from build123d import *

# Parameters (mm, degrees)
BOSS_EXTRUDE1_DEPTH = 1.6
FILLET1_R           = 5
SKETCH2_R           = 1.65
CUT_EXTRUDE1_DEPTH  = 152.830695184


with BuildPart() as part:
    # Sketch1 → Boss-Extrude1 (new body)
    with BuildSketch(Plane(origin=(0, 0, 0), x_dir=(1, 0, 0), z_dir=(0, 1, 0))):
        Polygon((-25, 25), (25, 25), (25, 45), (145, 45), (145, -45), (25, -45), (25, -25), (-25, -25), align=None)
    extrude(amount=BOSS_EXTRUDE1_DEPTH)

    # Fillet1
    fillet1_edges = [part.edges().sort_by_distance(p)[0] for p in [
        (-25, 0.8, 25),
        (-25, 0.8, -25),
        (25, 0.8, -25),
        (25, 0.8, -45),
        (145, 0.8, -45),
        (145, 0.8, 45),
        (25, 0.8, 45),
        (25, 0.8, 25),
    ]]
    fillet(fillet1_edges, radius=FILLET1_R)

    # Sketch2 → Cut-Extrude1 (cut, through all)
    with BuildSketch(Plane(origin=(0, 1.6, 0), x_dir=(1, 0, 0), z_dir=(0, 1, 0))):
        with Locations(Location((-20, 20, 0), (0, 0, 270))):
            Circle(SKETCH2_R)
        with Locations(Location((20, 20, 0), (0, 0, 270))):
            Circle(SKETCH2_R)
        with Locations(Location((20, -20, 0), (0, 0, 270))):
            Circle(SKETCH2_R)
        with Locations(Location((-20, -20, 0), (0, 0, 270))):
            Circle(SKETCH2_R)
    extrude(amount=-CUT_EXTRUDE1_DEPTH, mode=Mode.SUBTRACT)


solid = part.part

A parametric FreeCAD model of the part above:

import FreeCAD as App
import Part
import Sketcher


def edges_at(feature, points):
    """Names of the edges that pass closest to the given points."""
    edges = feature.Shape.Edges
    near = lambda p: min(range(len(edges)), key=lambda i: edges[i].distToShape(Part.Vertex(*p))[0])
    return sorted({f"Edge{near(p) + 1}" for p in points})


def add_polygon(sketch, points):
    """Adds a closed chain of lines whose ends are joined by coincident constraints."""
    first, n = sketch.GeometryCount, len(points)
    for a, b in zip(points, points[1:] + points[:1]):
        sketch.addGeometry(Part.LineSegment(App.Vector(*a, 0), App.Vector(*b, 0)), False)
    for i in range(n):
        sketch.addConstraint(Sketcher.Constraint("Coincident", first + i, 2, first + (i + 1) % n, 1))

doc = App.newDocument("Part")
body = doc.addObject("PartDesign::Body", "Body")

sketch1 = body.newObject("Sketcher::SketchObject", "Sketch")
sketch1.AttachmentSupport = (doc.getObject("XZ_Plane"), [""])
sketch1.MapMode = "FlatFace"
add_polygon(sketch1, [(25, -25), (-25, -25), (-25, 25), (25, 25), (25, 45), (145, 45), (145, -45), (25, -45)])
sketch1.addConstraint([
    Sketcher.Constraint("Horizontal", 0),
    Sketcher.Constraint("Vertical", 1),
    Sketcher.Constraint("Horizontal", 2),
    Sketcher.Constraint("Vertical", 3),
    Sketcher.Constraint("Horizontal", 4),
    Sketcher.Constraint("Vertical", 5),
    Sketcher.Constraint("Horizontal", 6),
    Sketcher.Constraint("Vertical", 7),
    Sketcher.Constraint("Symmetric", 0, 2, 2, 2, -1, 1),
    Sketcher.Constraint("Symmetric", 3, 2, 6, 2, -1),
    Sketcher.Constraint("Equal", 2, 1),
    Sketcher.Constraint("DistanceX", 0, 2, 0, 1, 50.0),
    Sketcher.Constraint("DistanceX", 4, 1, 4, 2, 120.0),
    Sketcher.Constraint("DistanceY", 3, 1, 3, 2, 20.0),
])
pad1 = body.newObject("PartDesign::Pad", "Pad")
pad1.Profile = sketch1
pad1.Length = 1.6
pad1.Reversed = True
doc.recompute()

fillet = body.newObject("PartDesign::Fillet", "Fillet")
fillet.Base = (pad1, edges_at(pad1, [
    (-25, 0.8, 25),
    (-25, 0.8, -25),
    (25, 0.8, -25),
    (25, 0.8, -45),
    (145, 0.8, -45),
    (145, 0.8, 45),
    (25, 0.8, 45),
    (25, 0.8, 25),
]))
fillet.Radius = 5

sketch2 = body.newObject("Sketcher::SketchObject", "Sketch001")
sketch2.AttachmentSupport = (doc.getObject("XZ_Plane"), [""])
sketch2.MapMode = "FlatFace"
sketch2.AttachmentOffset = App.Placement(App.Vector(0, 0, -1.6), App.Rotation())
sketch2.addGeometry([
    Part.Circle(App.Vector(-20, -20, 0), App.Vector(0, 0, 1), 1.65),
    Part.Circle(App.Vector(20, -20, 0), App.Vector(0, 0, 1), 1.65),
    Part.Circle(App.Vector(20, 20, 0), App.Vector(0, 0, 1), 1.65),
    Part.Circle(App.Vector(-20, 20, 0), App.Vector(0, 0, 1), 1.65),
], False)
sketch2.addConstraint([
    Sketcher.Constraint("Equal", 0, 1),
    Sketcher.Constraint("Equal", 1, 2),
    Sketcher.Constraint("Equal", 2, 3),
    Sketcher.Constraint("Symmetric", 0, 3, 2, 3, -1, 1),
    Sketcher.Constraint("Symmetric", 1, 3, 3, 3, -1, 1),
    Sketcher.Constraint("Symmetric", 0, 3, 1, 3, -2),
    Sketcher.Constraint("Diameter", 0, 3.3),
    Sketcher.Constraint("DistanceX", 0, 3, -1, 1, 20.0),
    Sketcher.Constraint("DistanceY", 0, 3, -1, 1, 20.0),
])
pocket1 = body.newObject("PartDesign::Pocket", "Pocket")
pocket1.Profile = sketch2
pocket1.Type = "ThroughAll"
pocket1.Reversed = True

doc.recompute()
